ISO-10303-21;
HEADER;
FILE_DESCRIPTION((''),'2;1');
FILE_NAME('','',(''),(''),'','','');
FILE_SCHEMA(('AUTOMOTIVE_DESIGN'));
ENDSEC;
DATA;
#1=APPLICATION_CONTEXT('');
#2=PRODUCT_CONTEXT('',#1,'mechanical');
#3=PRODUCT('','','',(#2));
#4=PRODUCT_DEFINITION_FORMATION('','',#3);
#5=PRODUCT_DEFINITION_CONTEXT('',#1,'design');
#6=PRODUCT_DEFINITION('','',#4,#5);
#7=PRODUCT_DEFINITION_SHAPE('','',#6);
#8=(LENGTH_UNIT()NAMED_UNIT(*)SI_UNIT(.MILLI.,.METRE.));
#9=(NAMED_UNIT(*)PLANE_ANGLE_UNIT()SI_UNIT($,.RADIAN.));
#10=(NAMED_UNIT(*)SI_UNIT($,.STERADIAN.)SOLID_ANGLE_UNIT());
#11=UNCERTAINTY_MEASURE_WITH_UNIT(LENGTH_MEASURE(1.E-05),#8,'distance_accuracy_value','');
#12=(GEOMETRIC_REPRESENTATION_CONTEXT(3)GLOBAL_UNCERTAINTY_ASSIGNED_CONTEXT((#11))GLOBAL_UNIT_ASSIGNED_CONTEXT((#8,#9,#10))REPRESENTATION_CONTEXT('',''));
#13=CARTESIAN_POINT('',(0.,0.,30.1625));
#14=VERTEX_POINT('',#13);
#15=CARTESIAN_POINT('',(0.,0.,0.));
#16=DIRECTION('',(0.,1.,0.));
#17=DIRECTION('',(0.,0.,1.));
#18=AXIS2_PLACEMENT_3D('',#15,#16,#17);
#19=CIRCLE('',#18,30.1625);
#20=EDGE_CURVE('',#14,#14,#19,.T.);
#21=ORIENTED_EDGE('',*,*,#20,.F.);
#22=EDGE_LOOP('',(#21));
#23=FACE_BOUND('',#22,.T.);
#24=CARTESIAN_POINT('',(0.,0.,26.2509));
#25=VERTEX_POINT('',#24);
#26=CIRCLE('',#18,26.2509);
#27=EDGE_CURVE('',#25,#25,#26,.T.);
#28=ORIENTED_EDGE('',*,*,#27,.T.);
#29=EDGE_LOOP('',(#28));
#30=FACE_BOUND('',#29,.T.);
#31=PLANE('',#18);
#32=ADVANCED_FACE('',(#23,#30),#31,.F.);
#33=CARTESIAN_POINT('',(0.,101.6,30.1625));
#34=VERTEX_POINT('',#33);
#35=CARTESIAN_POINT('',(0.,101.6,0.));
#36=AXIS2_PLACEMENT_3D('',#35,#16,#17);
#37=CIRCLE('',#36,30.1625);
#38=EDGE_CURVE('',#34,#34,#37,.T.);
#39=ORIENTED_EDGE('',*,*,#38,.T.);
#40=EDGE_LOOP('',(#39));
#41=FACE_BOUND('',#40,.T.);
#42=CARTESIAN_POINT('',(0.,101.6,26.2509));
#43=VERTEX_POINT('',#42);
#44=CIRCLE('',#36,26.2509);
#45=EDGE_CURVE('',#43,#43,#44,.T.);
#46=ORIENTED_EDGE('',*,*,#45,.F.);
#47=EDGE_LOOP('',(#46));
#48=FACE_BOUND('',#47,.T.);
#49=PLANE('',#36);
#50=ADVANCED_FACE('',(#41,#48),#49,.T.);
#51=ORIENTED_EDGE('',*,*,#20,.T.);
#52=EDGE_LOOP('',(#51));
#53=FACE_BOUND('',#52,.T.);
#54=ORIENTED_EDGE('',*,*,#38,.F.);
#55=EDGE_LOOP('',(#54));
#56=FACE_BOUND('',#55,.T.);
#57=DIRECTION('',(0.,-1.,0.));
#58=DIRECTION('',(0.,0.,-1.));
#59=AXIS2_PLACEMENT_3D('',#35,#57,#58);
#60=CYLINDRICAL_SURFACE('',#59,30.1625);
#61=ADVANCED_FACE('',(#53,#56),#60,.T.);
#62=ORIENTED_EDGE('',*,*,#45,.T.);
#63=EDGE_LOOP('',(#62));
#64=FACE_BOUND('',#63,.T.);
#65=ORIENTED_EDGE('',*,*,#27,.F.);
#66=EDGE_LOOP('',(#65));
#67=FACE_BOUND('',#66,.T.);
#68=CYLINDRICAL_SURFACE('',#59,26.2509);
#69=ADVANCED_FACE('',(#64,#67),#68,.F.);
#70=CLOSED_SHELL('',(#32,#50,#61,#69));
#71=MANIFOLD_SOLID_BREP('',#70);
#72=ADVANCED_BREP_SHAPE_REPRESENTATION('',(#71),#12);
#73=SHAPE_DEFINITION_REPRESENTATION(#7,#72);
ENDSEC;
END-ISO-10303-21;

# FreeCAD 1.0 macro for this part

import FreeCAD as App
import Part
import Sketcher
from FreeCAD import Vector
Q = App.Units.Quantity

doc = App.newDocument("Part")
body = doc.addObject("PartDesign::Body", "Body")

# Sketch on XZ plane
sketch1 = doc.addObject("Sketcher::SketchObject", "Sketch")
body.addObject(sketch1)
sketch1.AttachmentSupport = (doc.XZ_Plane, [""])
sketch1.MapMode = "FlatFace"
sketch1.addGeometry(Part.Circle(Vector(0, 0, 0), Vector(0, 0, 1), 30), False)
sketch1.addGeometry(Part.Circle(Vector(0, 0, 0), Vector(0, 0, 1), 26), False)
sketch1.addConstraint(Sketcher.Constraint("Coincident", 0, 3, -1, 1))
sketch1.addConstraint(Sketcher.Constraint("Coincident", 1, 3, -1, 1))
sketch1.addConstraint(Sketcher.Constraint("Diameter", 0, Q("2.375 in")))
sketch1.addConstraint(Sketcher.Constraint("Diameter", 1, Q("2.067 in")))

# Sketch on XY plane
sketch2 = doc.addObject("Sketcher::SketchObject", "Sketch001")
body.addObject(sketch2)
sketch2.AttachmentSupport = (doc.XY_Plane, [""])
sketch2.MapMode = "FlatFace"
sketch2.addGeometry(Part.LineSegment(Vector(0, 0, 0), Vector(0, 102, 0)), False)
sketch2.addConstraint(Sketcher.Constraint("Vertical", 0))
sketch2.addConstraint(Sketcher.Constraint("Coincident", 0, 1, -1, 1))
sketch2.addConstraint(Sketcher.Constraint("DistanceY", 0, 1, 0, 2, Q("4 in")))
doc.recompute()

additivepipe = doc.addObject("PartDesign::AdditivePipe", "AdditivePipe")
body.addObject(additivepipe)
additivepipe.Profile = sketch1
additivepipe.Spine = (sketch2, ["Edge1"])

doc.recompute()
